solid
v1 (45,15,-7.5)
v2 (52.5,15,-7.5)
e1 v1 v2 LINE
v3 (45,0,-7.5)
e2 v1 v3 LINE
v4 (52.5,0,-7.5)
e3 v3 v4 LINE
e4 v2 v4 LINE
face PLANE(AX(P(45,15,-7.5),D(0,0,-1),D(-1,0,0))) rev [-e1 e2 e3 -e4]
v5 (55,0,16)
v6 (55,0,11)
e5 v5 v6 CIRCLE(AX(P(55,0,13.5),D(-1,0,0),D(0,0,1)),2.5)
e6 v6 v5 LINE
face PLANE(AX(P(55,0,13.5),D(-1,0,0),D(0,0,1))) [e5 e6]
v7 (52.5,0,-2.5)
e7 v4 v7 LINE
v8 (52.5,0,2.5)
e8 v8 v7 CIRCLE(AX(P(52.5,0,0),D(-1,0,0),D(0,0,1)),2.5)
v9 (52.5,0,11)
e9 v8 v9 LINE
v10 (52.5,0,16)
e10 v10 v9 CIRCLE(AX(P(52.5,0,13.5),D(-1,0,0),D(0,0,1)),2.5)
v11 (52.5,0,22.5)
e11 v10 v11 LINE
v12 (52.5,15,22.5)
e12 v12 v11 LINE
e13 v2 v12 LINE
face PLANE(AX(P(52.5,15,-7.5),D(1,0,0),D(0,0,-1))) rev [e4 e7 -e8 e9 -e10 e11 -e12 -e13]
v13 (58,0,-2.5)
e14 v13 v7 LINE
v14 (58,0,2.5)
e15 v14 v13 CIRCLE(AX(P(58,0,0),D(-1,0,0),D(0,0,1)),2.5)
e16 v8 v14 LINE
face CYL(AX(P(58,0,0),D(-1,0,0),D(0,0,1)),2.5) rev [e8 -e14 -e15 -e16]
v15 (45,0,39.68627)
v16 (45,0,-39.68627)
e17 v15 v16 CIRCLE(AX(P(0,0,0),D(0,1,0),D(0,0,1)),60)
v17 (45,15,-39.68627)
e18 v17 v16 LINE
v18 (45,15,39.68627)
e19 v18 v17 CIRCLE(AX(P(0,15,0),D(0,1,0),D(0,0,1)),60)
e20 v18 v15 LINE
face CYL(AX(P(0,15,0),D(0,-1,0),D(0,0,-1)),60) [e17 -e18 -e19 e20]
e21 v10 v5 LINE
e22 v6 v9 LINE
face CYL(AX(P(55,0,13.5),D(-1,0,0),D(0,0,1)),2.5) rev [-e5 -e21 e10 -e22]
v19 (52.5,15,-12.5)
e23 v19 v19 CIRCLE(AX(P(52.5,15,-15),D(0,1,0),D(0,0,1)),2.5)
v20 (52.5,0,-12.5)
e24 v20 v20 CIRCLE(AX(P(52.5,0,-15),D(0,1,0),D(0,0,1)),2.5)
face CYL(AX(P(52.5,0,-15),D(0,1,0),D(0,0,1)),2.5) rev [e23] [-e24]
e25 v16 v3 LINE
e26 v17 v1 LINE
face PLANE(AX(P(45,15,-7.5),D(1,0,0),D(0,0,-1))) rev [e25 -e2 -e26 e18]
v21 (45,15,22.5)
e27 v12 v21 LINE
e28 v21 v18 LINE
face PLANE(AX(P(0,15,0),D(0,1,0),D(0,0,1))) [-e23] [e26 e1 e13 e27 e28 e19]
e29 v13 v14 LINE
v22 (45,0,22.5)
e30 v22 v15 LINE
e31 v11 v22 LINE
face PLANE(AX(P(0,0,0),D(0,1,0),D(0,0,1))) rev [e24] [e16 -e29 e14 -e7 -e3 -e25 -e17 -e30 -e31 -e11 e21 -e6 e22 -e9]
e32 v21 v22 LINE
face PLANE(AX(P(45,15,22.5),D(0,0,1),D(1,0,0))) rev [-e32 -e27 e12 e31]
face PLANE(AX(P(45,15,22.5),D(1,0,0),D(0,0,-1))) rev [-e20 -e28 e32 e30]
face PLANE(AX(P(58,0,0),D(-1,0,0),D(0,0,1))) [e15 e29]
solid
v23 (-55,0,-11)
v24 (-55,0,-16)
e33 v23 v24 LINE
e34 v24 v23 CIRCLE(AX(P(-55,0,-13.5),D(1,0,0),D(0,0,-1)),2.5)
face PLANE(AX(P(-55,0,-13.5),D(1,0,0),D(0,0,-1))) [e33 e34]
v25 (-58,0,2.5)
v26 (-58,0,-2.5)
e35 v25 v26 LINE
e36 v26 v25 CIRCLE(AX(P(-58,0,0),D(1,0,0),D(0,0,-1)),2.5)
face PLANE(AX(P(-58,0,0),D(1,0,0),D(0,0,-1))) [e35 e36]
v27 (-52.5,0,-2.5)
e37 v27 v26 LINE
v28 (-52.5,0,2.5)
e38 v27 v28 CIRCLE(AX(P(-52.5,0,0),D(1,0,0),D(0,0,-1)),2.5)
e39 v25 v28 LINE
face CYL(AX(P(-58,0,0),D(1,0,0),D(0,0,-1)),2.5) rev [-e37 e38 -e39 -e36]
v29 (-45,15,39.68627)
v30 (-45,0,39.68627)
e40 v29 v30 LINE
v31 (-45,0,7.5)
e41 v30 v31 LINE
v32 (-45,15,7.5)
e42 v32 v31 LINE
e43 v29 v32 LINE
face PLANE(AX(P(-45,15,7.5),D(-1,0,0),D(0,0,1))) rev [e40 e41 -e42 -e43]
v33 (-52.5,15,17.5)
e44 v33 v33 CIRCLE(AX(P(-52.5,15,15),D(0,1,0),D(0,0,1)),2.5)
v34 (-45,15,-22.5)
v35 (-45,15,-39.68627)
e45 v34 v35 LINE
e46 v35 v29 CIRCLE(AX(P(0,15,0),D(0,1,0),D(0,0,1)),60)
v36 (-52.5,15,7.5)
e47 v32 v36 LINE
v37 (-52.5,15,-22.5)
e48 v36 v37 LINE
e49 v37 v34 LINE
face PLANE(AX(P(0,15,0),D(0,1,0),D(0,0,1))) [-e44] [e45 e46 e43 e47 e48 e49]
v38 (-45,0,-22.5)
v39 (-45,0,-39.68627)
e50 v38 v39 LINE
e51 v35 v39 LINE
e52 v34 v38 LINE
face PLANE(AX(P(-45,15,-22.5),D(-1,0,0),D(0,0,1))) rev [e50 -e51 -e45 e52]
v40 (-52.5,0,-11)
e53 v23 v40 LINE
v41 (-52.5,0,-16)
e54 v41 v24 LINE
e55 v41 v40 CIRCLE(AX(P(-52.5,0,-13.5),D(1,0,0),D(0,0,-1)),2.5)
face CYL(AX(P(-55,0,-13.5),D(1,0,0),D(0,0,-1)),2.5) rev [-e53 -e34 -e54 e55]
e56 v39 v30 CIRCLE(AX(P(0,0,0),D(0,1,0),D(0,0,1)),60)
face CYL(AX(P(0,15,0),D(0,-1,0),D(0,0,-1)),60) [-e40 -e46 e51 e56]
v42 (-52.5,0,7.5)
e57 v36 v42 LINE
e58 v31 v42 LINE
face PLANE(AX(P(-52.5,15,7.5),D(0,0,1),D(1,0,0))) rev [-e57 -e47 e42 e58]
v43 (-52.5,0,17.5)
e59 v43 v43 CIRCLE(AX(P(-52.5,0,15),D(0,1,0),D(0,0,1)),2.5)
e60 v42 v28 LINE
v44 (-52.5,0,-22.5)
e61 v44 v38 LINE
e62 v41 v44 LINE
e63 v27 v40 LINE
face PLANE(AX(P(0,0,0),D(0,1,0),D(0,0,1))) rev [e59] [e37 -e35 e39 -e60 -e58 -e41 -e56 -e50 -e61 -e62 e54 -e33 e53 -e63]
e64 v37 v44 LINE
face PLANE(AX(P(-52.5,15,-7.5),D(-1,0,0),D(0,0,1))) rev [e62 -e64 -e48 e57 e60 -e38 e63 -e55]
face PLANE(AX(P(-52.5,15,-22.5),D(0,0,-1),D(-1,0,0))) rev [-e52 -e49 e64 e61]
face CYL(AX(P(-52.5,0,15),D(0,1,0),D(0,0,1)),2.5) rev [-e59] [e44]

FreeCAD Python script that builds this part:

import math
import FreeCAD as App
import Part
import Sketcher
from FreeCAD import Vector

doc = App.newDocument("Part")
params = doc.addObject("Spreadsheet::Sheet", "Params")
for row, (alias, value) in enumerate([
    ("sketch1_radius", "60 mm"),
    ("sketch1_height", "30 mm"),
    ("sketch1_width", "7.5 mm"),
    ("pad1_length", "15 mm"),
    ("sketch2_diameter", "5 mm"),
    ("pocket1_length", "2.5 mm"),
    ("sketch3_diameter", "5 mm"),
    ("pocket2_length", "5.5 mm"),
    ("sketch4_radius", "60 mm"),
    ("sketch4_height", "30 mm"),
    ("sketch4_width", "7.5 mm"),
    ("pad2_length", "15 mm"),
    ("sketch5_diameter", "5 mm"),
    ("pocket3_length", "5.5 mm"),
    ("sketch6_diameter", "5 mm"),
    ("pocket4_length", "2.5 mm"),
    ("sketch7_diameter", "5 mm"),
    ("pad3_length", "74.484692 mm"),
], start=1):
    params.set(f"A{row}", alias)
    params.set(f"B{row}", "=" + value)
    params.setAlias(f"B{row}", alias)

body = doc.addObject("PartDesign::Body", "Body")

sketch1 = doc.addObject("Sketcher::SketchObject", "Sketch")
body.addObject(sketch1)
sketch1.AttachmentSupport = (doc.XZ_Plane, [""])
sketch1.MapMode = "FlatFace"
sketch1.addGeometry([
    Part.LineSegment(Vector(-45, -22, 0), Vector(-45, -40, 0)),
    Part.ArcOfCircle(Part.Circle(Vector(0, 0, 0), Vector(0, 0, 1), 60), math.radians(139), math.radians(221)),
    Part.LineSegment(Vector(-45, 40, 0), Vector(-45, 8, 0)),
    Part.LineSegment(Vector(-45, 8, 0), Vector(-52, 8, 0)),
    Part.LineSegment(Vector(-52, 8, 0), Vector(-52, -22, 0)),
    Part.LineSegment(Vector(-52, -22, 0), Vector(-45, -22, 0)),
], False)
sketch1.addConstraint([
    Sketcher.Constraint("Coincident", 0, 2, 1, 2),
    Sketcher.Constraint("Coincident", 1, 1, 2, 1),
    Sketcher.Constraint("Coincident", 2, 2, 3, 1),
    Sketcher.Constraint("Coincident", 3, 2, 4, 1),
    Sketcher.Constraint("Coincident", 4, 2, 5, 1),
    Sketcher.Constraint("Coincident", 5, 2, 0, 1),
    Sketcher.Constraint("Vertical", 0),
    Sketcher.Constraint("Vertical", 2),
    Sketcher.Constraint("Horizontal", 3),
    Sketcher.Constraint("Vertical", 4),
    Sketcher.Constraint("Horizontal", 5),
    Sketcher.Constraint("Coincident", 1, 3, -1, 1),
    Sketcher.Constraint("Vertical", 0, 2, 1, 1),
    Sketcher.Constraint("Radius", 1, 60.0),
    Sketcher.Constraint("DistanceY", 4, 2, 4, 1, 30.0),
    Sketcher.Constraint("DistanceX", 3, 2, 3, 1, 7.5),
    Sketcher.Constraint("DistanceX", 0, 2, -1, 1, 45.0),
    Sketcher.Constraint("DistanceY", -1, 1, 2, 2, 7.5),
])
sketch1.setExpression("Constraints[13]", "Params.sketch1_radius")
sketch1.setExpression("Constraints[14]", "Params.sketch1_height")
sketch1.setExpression("Constraints[15]", "Params.sketch1_width")
pad1 = doc.addObject("PartDesign::Pad", "Pad")
body.addObject(pad1)
pad1.Profile = sketch1
pad1.setExpression("Length", "Params.pad1_length")
pad1.Reversed = True

sketch2 = doc.addObject("Sketcher::SketchObject", "Sketch001")
body.addObject(sketch2)
sketch2.AttachmentSupport = (doc.YZ_Plane, [""])
sketch2.MapMode = "FlatFace"
sketch2.AttachmentOffset = App.Placement(Vector(0, 0, -52.5), App.Rotation())
sketch2.addGeometry(Part.Circle(Vector(0, -13.5, 0), Vector(0, 0, 1), 2.5), False)
sketch2.addConstraint([
    Sketcher.Constraint("PointOnObject", 0, 3, -2),
    Sketcher.Constraint("Diameter", 0, 5.0),
    Sketcher.Constraint("DistanceY", 0, 3, -1, 1, 13.5),
])
sketch2.setExpression("Constraints[1]", "Params.sketch2_diameter")
pocket1 = doc.addObject("PartDesign::Pocket", "Pocket")
body.addObject(pocket1)
pocket1.Profile = sketch2
pocket1.setExpression("Length", "Params.pocket1_length")

sketch3 = doc.addObject("Sketcher::SketchObject", "Sketch002")
body.addObject(sketch3)
sketch3.AttachmentSupport = (doc.YZ_Plane, [""])
sketch3.MapMode = "FlatFace"
sketch3.AttachmentOffset = App.Placement(Vector(0, 0, -52.5), App.Rotation())
sketch3.addGeometry(Part.Circle(Vector(0, 0, 0), Vector(0, 0, 1), 2.5), False)
sketch3.addConstraint([
    Sketcher.Constraint("Coincident", 0, 3, -1, 1),
    Sketcher.Constraint("Diameter", 0, 5.0),
])
sketch3.setExpression("Constraints[1]", "Params.sketch3_diameter")
pocket2 = doc.addObject("PartDesign::Pocket", "Pocket001")
body.addObject(pocket2)
pocket2.Profile = sketch3
pocket2.setExpression("Length", "Params.pocket2_length")
body2 = doc.addObject("PartDesign::Body", "Body001")

sketch4 = doc.addObject("Sketcher::SketchObject", "Sketch003")
body2.addObject(sketch4)
sketch4.AttachmentSupport = (doc.getObject("XZ_Plane001"), [""])
sketch4.MapMode = "FlatFace"
sketch4.addGeometry([
    Part.LineSegment(Vector(45, -8, 0), Vector(52, -8, 0)),
    Part.LineSegment(Vector(52, -8, 0), Vector(52, 22, 0)),
    Part.LineSegment(Vector(52, 22, 0), Vector(45, 22, 0)),
    Part.LineSegment(Vector(45, 22, 0), Vector(45, 40, 0)),
    Part.ArcOfCircle(Part.Circle(Vector(0, 0, 0), Vector(0, 0, 1), 60), math.radians(-41), math.radians(41)),
    Part.LineSegment(Vector(45, -40, 0), Vector(45, -8, 0)),
], False)
sketch4.addConstraint([
    Sketcher.Constraint("Coincident", 0, 2, 1, 1),
    Sketcher.Constraint("Coincident", 1, 2, 2, 1),
    Sketcher.Constraint("Coincident", 2, 2, 3, 1),
    Sketcher.Constraint("Coincident", 3, 2, 4, 2),
    Sketcher.Constraint("Coincident", 4, 1, 5, 1),
    Sketcher.Constraint("Coincident", 5, 2, 0, 1),
    Sketcher.Constraint("Horizontal", 0),
    Sketcher.Constraint("Vertical", 1),
    Sketcher.Constraint("Horizontal", 2),
    Sketcher.Constraint("Vertical", 3),
    Sketcher.Constraint("Vertical", 5),
    Sketcher.Constraint("Coincident", 4, 3, -1, 1),
    Sketcher.Constraint("Vertical", 3, 2, 4, 1),
    Sketcher.Constraint("Radius", 4, 60.0),
    Sketcher.Constraint("DistanceY", 1, 1, 1, 2, 30.0),
    Sketcher.Constraint("DistanceX", 0, 1, 0, 2, 7.5),
    Sketcher.Constraint("DistanceX", -1, 1, 2, 2, 45.0),
    Sketcher.Constraint("DistanceY", 0, 2, -1, 1, 7.5),
])
sketch4.setExpression("Constraints[13]", "Params.sketch4_radius")
sketch4.setExpression("Constraints[14]", "Params.sketch4_height")
sketch4.setExpression("Constraints[15]", "Params.sketch4_width")
pad2 = doc.addObject("PartDesign::Pad", "Pad001")
body2.addObject(pad2)
pad2.Profile = sketch4
pad2.setExpression("Length", "Params.pad2_length")
pad2.Reversed = True

sketch5 = doc.addObject("Sketcher::SketchObject", "Sketch004")
body2.addObject(sketch5)
sketch5.AttachmentSupport = (doc.getObject("YZ_Plane001"), [""])
sketch5.MapMode = "FlatFace"
sketch5.AttachmentOffset = App.Placement(Vector(0, 0, 58), App.Rotation())
sketch5.addGeometry(Part.Circle(Vector(0, 0, 0), Vector(0, 0, 1), 2.5), False)
sketch5.addConstraint([
    Sketcher.Constraint("Coincident", 0, 3, -1, 1),
    Sketcher.Constraint("Diameter", 0, 5.0),
])
sketch5.setExpression("Constraints[1]", "Params.sketch5_diameter")
pocket3 = doc.addObject("PartDesign::Pocket", "Pocket002")
body2.addObject(pocket3)
pocket3.Profile = sketch5
pocket3.setExpression("Length", "Params.pocket3_length")

sketch6 = doc.addObject("Sketcher::SketchObject", "Sketch005")
body2.addObject(sketch6)
sketch6.AttachmentSupport = (doc.getObject("YZ_Plane001"), [""])
sketch6.MapMode = "FlatFace"
sketch6.AttachmentOffset = App.Placement(Vector(0, 0, 52.5), App.Rotation())
sketch6.addGeometry(Part.Circle(Vector(0, 13.5, 0), Vector(0, 0, 1), 2.5), False)
sketch6.addConstraint([
    Sketcher.Constraint("PointOnObject", 0, 3, -2),
    Sketcher.Constraint("Diameter", 0, 5.0),
    Sketcher.Constraint("DistanceY", -1, 1, 0, 3, 13.5),
])
sketch6.setExpression("Constraints[1]", "Params.sketch6_diameter")
pocket4 = doc.addObject("PartDesign::Pocket", "Pocket003")
body2.addObject(pocket4)
pocket4.Profile = sketch6
pocket4.setExpression("Length", "Params.pocket4_length")
pocket4.Reversed = True
body3 = doc.addObject("PartDesign::Body", "Body002")
body3.AllowCompound = True

sketch7 = doc.addObject("Sketcher::SketchObject", "Sketch006")
body3.addObject(sketch7)
sketch7.AttachmentSupport = (doc.getObject("XZ_Plane002"), [""])
sketch7.MapMode = "FlatFace"
sketch7.AttachmentOffset = App.Placement(Vector(0, 0, -15), App.Rotation())
sketch7.addGeometry([
    Part.Circle(Vector(52.5, -15, 0), Vector(0, 0, 1), 2.5),
    Part.Circle(Vector(-52.5, 15, 0), Vector(0, 0, 1), 2.5),
], False)
sketch7.addConstraint([
    Sketcher.Constraint("Equal", 0, 1),
    Sketcher.Constraint("Symmetric", 0, 3, 1, 3, -1, 1),
    Sketcher.Constraint("Diameter", 0, 5.0),
    Sketcher.Constraint("DistanceY", 0, 3, -1, 1, 15.0),
    Sketcher.Constraint("DistanceX", 1, 3, 0, 3, 105.0),
])
sketch7.setExpression("Constraints[2]", "Params.sketch7_diameter")
pad3 = doc.addObject("PartDesign::Pad", "Pad002")
body3.addObject(pad3)
pad3.Profile = sketch7
pad3.setExpression("Length", "Params.pad3_length")
doc.recompute()

body4 = doc.addObject("PartDesign::Body", "Body003")
body4.BaseFeature = body3
boolean = doc.addObject("PartDesign::Boolean", "Boolean")
body.addObject(boolean)
boolean.Type = "Cut"
boolean.addObjects([body4])
doc.recompute()

boolean2 = doc.addObject("PartDesign::Boolean", "Boolean001")
body2.addObject(boolean2)
boolean2.Type = "Cut"
boolean2.addObjects([body3])

doc.recompute()
